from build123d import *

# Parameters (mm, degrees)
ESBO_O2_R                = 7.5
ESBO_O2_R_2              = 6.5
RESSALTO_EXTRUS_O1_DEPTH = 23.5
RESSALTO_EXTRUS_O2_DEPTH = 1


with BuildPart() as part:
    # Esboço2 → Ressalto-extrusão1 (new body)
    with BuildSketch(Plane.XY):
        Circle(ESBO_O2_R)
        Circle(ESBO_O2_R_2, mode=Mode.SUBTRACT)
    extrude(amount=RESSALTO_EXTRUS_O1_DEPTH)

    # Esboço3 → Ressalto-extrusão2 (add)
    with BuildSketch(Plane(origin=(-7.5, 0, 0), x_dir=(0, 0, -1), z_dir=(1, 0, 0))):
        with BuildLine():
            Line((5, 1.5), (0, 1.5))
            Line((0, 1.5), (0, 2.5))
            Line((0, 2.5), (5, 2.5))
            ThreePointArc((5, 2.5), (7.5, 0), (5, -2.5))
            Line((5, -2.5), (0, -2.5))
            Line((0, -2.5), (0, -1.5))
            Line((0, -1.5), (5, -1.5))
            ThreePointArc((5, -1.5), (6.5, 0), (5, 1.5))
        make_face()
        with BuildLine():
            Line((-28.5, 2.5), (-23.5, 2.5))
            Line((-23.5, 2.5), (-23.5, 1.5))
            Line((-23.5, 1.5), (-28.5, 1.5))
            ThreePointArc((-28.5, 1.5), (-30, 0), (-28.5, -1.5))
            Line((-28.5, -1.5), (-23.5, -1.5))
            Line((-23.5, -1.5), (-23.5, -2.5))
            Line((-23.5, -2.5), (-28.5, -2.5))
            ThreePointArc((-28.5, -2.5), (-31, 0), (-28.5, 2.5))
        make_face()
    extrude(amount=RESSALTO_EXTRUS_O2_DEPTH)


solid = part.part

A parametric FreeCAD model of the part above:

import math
import FreeCAD as App
import Part
import Sketcher
from FreeCAD import Vector
Q = App.Units.Quantity

doc = App.newDocument("Part")
body = doc.addObject("PartDesign::Body", "Body")

# Sketch on XY plane
sketch1 = body.newObject("Sketcher::SketchObject", "Sketch")
sketch1.AttachmentSupport = (doc.getObject("XY_Plane"), [""])
sketch1.MapMode = "FlatFace"
sketch1.addGeometry([
    Part.Circle(Vector(0, 0, 0), Vector(0, 0, 1), 7.5),
    Part.Circle(Vector(0, 0, 0), Vector(0, 0, 1), 6.5),
], False)
sketch1.addConstraint([
    Sketcher.Constraint("Coincident", 0, 3, -1, 1),
    Sketcher.Constraint("Coincident", 1, 3, -1, 1),
    Sketcher.Constraint("Diameter", 0, Q("15 mm")),
    Sketcher.Constraint("Diameter", 1, Q("13 mm")),
])
pad1 = body.newObject("PartDesign::Pad", "Pad")
pad1.Profile = sketch1
pad1.Length = 23.5

# Sketch on YZ plane
sketch2 = body.newObject("Sketcher::SketchObject", "Sketch001")
sketch2.AttachmentSupport = (doc.getObject("YZ_Plane"), [""])
sketch2.MapMode = "FlatFace"
sketch2.AttachmentOffset = App.Placement(Vector(0, 0, -7.5), App.Rotation())
sketch2.addGeometry([
    Part.LineSegment(Vector(1.5, 0, 0), Vector(1.5, -5, 0)),  # 0
    Part.ArcOfCircle(Part.Circle(Vector(0, -5, 0), Vector(0, 0, 1), 1.5), math.radians(180), math.radians(360)),  # 1
    Part.LineSegment(Vector(-1.5, -5, 0), Vector(-1.5, 0, 0)),  # 2
    Part.LineSegment(Vector(-1.5, 0, 0), Vector(-2.5, 0, 0)),  # 3
    Part.LineSegment(Vector(-2.5, 0, 0), Vector(-2.5, -5, 0)),  # 4
    Part.ArcOfCircle(Part.Circle(Vector(0, -5, 0), Vector(0, 0, 1), 2.5), math.radians(180), math.radians(360)),  # 5
    Part.LineSegment(Vector(2.5, -5, 0), Vector(2.5, 0, 0)),  # 6
    Part.LineSegment(Vector(2.5, 0, 0), Vector(1.5, 0, 0)),  # 7
    Part.LineSegment(Vector(2.5, 23.5, 0), Vector(2.5, 28.5, 0)),  # 8
    Part.ArcOfCircle(Part.Circle(Vector(0, 28.5, 0), Vector(0, 0, 1), 2.5), math.radians(0), math.radians(180)),  # 9
    Part.LineSegment(Vector(-2.5, 28.5, 0), Vector(-2.5, 23.5, 0)),  # 10
    Part.LineSegment(Vector(-2.5, 23.5, 0), Vector(-1.5, 23.5, 0)),  # 11
    Part.LineSegment(Vector(-1.5, 23.5, 0), Vector(-1.5, 28.5, 0)),  # 12
    Part.ArcOfCircle(Part.Circle(Vector(0, 28.5, 0), Vector(0, 0, 1), 1.5), math.radians(0), math.radians(180)),  # 13
    Part.LineSegment(Vector(1.5, 28.5, 0), Vector(1.5, 23.5, 0)),  # 14
    Part.LineSegment(Vector(1.5, 23.5, 0), Vector(2.5, 23.5, 0)),  # 15
], False)
sketch2.addConstraint([
    Sketcher.Constraint("Tangent", 0, 2, 1, 2),
    Sketcher.Constraint("Tangent", 1, 1, 2, 1),
    Sketcher.Constraint("Coincident", 2, 2, 3, 1),
    Sketcher.Constraint("Coincident", 3, 2, 4, 1),
    Sketcher.Constraint("Tangent", 4, 2, 5, 1),
    Sketcher.Constraint("Tangent", 5, 2, 6, 1),
    Sketcher.Constraint("Coincident", 6, 2, 7, 1),
    Sketcher.Constraint("Coincident", 7, 2, 0, 1),
    Sketcher.Constraint("Tangent", 8, 2, 9, 1),
    Sketcher.Constraint("Tangent", 9, 2, 10, 1),
    Sketcher.Constraint("Coincident", 10, 2, 11, 1),
    Sketcher.Constraint("Coincident", 11, 2, 12, 1),
    Sketcher.Constraint("Tangent", 12, 2, 13, 2),
    Sketcher.Constraint("Tangent", 13, 1, 14, 1),
    Sketcher.Constraint("Coincident", 14, 2, 15, 1),
    Sketcher.Constraint("Coincident", 15, 2, 8, 1),
    Sketcher.Constraint("Vertical", 0),
    Sketcher.Constraint("Vertical", 2),
    Sketcher.Constraint("Horizontal", 3),
    Sketcher.Constraint("Vertical", 4),
    Sketcher.Constraint("Vertical", 6),
    Sketcher.Constraint("Horizontal", 7),
    Sketcher.Constraint("Vertical", 8),
    Sketcher.Constraint("Vertical", 10),
    Sketcher.Constraint("Horizontal", 11),
    Sketcher.Constraint("Vertical", 12),
    Sketcher.Constraint("Vertical", 14),
    Sketcher.Constraint("Horizontal", 15),
    Sketcher.Constraint("Coincident", 5, 3, 1, 3),
    Sketcher.Constraint("Coincident", 13, 3, 9, 3),
    Sketcher.Constraint("Equal", 5, 9),
    Sketcher.Constraint("Equal", 1, 13),
    Sketcher.Constraint("Symmetric", 3, 2, 6, 2, -1, 1),
    Sketcher.Constraint("Symmetric", 11, 2, 14, 2, -2),
    Sketcher.Constraint("PointOnObject", 2, 2, -1),
    Sketcher.Constraint("Equal", 6, 8),
    Sketcher.Constraint("Radius", 1, Q("1.5 mm")),
    Sketcher.Constraint("Radius", 5, Q("2.5 mm")),
    Sketcher.Constraint("DistanceY", 0, 2, 0, 1, Q("5 mm")),
    Sketcher.Constraint("DistanceY", -1, 1, 9, 3, Q("28.5 mm")),
])
pad2 = body.newObject("PartDesign::Pad", "Pad001")
pad2.Profile = sketch2
pad2.Length = 1

doc.recompute()
